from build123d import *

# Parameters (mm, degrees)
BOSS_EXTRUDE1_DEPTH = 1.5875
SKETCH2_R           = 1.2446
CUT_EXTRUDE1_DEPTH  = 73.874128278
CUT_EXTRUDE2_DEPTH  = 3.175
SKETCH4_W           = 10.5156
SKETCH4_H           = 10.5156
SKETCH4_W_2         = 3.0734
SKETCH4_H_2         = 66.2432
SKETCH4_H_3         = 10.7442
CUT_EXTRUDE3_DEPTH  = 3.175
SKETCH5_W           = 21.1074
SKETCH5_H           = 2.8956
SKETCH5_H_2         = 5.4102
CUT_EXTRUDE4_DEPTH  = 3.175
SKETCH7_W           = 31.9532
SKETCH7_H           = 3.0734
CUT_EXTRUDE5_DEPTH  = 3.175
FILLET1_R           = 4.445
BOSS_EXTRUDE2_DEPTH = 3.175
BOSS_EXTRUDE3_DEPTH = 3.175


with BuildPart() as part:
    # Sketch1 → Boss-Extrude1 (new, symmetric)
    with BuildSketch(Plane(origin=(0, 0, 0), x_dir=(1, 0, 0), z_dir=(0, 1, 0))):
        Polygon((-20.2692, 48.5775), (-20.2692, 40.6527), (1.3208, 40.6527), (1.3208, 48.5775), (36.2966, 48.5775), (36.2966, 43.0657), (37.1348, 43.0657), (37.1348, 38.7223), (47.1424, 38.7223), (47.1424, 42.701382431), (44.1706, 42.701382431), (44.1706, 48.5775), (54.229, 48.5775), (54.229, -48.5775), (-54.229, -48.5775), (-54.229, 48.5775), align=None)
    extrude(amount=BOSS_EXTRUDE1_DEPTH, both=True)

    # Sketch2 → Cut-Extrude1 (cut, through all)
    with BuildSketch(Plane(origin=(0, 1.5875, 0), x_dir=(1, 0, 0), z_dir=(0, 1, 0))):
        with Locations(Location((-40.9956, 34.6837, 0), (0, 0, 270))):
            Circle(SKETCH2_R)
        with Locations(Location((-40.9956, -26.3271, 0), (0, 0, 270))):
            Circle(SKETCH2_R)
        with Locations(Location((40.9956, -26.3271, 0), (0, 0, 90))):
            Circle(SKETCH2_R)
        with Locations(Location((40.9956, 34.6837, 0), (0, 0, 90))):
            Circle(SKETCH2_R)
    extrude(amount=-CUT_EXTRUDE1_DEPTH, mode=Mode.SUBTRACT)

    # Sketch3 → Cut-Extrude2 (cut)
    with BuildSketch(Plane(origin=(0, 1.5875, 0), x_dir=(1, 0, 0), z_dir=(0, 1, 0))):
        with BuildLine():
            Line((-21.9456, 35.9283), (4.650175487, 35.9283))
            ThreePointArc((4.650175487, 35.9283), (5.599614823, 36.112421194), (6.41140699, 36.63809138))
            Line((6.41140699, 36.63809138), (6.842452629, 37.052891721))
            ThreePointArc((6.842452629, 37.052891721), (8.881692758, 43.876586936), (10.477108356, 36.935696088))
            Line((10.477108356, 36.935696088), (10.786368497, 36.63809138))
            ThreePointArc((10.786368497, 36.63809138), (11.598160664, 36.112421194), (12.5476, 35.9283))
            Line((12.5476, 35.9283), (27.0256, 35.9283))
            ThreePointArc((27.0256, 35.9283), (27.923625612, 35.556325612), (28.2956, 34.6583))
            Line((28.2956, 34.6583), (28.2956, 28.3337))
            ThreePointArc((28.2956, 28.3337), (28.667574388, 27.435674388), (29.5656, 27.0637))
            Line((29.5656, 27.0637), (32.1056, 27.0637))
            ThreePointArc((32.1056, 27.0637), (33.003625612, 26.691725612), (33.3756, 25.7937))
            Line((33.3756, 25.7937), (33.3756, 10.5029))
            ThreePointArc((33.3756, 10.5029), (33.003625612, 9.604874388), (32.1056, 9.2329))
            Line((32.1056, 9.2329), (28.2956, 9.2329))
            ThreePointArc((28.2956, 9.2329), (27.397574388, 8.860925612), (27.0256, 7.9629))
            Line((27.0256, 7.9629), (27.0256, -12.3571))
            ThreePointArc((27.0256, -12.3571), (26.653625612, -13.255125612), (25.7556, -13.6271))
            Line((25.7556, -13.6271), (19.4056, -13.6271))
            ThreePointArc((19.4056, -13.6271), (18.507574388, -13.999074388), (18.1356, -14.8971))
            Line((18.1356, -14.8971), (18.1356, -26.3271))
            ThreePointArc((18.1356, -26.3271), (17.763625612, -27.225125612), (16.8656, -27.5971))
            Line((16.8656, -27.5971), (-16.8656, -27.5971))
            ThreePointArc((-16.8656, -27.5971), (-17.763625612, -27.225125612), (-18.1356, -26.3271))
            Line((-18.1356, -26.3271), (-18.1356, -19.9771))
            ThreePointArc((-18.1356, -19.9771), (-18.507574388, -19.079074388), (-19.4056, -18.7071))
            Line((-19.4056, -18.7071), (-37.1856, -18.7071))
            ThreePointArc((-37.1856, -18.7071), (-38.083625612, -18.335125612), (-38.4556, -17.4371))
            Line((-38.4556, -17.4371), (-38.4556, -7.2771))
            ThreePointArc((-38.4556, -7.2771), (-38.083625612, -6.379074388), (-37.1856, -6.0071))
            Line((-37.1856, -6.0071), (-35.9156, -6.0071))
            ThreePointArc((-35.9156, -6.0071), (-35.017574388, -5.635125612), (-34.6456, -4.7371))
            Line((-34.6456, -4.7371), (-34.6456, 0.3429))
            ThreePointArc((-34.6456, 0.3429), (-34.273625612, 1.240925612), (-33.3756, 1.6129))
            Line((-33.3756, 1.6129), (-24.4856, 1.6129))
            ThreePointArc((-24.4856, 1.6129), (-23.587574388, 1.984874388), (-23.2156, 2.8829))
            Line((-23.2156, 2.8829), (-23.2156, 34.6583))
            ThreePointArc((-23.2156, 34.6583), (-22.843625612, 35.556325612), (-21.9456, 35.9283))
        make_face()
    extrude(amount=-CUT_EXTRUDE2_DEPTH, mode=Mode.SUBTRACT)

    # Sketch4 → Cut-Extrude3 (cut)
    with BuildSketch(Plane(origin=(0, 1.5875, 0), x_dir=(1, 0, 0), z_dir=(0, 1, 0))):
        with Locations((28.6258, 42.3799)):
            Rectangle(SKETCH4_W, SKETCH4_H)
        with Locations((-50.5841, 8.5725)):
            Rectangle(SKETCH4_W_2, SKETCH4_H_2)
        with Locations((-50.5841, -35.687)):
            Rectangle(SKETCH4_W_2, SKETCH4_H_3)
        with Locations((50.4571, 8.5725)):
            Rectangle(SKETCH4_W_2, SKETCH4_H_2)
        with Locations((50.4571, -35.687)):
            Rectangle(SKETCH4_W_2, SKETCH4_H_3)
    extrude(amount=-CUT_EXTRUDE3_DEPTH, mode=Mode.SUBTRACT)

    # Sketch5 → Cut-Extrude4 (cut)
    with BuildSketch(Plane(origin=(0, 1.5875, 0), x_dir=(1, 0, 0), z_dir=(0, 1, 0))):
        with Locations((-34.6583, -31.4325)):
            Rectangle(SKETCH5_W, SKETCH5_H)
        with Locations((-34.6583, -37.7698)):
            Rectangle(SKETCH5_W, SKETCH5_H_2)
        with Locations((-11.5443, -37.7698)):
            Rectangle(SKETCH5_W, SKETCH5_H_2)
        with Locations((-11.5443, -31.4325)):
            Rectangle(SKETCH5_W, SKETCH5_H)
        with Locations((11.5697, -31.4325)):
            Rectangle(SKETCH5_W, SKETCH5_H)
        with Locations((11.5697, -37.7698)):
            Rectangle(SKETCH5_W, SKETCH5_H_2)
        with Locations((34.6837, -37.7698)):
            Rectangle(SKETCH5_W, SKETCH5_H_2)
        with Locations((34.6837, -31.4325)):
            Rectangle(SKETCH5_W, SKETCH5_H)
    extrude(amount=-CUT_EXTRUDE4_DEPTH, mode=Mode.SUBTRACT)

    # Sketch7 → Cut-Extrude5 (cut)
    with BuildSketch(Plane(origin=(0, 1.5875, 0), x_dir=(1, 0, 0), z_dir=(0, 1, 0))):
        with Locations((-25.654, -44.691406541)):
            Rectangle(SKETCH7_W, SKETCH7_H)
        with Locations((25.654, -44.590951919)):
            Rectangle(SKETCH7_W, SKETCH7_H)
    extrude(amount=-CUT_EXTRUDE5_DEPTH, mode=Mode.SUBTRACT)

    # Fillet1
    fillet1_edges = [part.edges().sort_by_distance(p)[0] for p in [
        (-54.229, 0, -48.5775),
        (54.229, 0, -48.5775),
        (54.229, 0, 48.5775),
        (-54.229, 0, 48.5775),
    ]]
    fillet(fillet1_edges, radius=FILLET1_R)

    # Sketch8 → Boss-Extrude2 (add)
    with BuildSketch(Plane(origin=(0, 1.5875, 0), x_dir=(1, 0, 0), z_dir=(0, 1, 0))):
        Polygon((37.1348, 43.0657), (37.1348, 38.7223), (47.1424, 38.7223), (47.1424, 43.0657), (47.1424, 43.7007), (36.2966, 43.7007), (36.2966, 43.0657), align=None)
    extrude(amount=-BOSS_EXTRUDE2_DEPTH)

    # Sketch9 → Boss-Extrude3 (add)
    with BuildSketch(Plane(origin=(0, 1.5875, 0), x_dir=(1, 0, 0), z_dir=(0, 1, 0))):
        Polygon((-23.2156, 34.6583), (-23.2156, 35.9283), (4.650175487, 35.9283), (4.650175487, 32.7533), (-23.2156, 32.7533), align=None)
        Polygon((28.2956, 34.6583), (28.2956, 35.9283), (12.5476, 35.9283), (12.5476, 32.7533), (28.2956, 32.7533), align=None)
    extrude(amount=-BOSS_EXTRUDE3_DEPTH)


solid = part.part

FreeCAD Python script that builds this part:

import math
import FreeCAD as App
import Part
import Sketcher

V = App.Vector
Q = App.Units.Quantity


def edges_at(feature, points):
    """Names of the edges that pass closest to the given points."""
    edges = feature.Shape.Edges
    near = lambda p: min(range(len(edges)), key=lambda i: edges[i].distToShape(Part.Vertex(*p))[0])
    return sorted({f"Edge{near(p) + 1}" for p in points})

doc = App.newDocument("Part")
body = doc.addObject("PartDesign::Body", "Body")

sketch1 = body.newObject("Sketcher::SketchObject", "Sketch")
sketch1.AttachmentSupport = (doc.getObject("XZ_Plane"), [""])
sketch1.MapMode = "FlatFace"
sketch1.addGeometry([
    Part.LineSegment(V(-20.3, -40.7, 0), V(-20.3, -48.6, 0)),
    Part.LineSegment(V(-20.3, -48.6, 0), V(-54.2, -48.6, 0)),
    Part.LineSegment(V(-54.2, -48.6, 0), V(-54.2, 48.6, 0)),
    Part.LineSegment(V(-54.2, 48.6, 0), V(54.2, 48.6, 0)),
    Part.LineSegment(V(54.2, 48.6, 0), V(54.2, -48.6, 0)),
    Part.LineSegment(V(54.2, -48.6, 0), V(44.2, -48.6, 0)),
    Part.LineSegment(V(44.2, -48.6, 0), V(44.2, -42.7, 0)),
    Part.LineSegment(V(44.2, -42.7, 0), V(47.1, -42.7, 0)),
    Part.LineSegment(V(47.1, -42.7, 0), V(47.1, -38.7, 0)),
    Part.LineSegment(V(47.1, -38.7, 0), V(37.1, -38.7, 0)),
    Part.LineSegment(V(37.1, -38.7, 0), V(37.1, -43.1, 0)),
    Part.LineSegment(V(37.1, -43.1, 0), V(36.3, -43.1, 0)),
    Part.LineSegment(V(36.3, -43.1, 0), V(36.3, -48.6, 0)),
    Part.LineSegment(V(36.3, -48.6, 0), V(1.3, -48.6, 0)),
    Part.LineSegment(V(1.3, -48.6, 0), V(1.3, -40.7, 0)),
    Part.LineSegment(V(1.3, -40.7, 0), V(-20.3, -40.7, 0)),
], False)
sketch1.addConstraint([
    Sketcher.Constraint("Coincident", 0, 2, 1, 1),
    Sketcher.Constraint("Coincident", 1, 2, 2, 1),
    Sketcher.Constraint("Coincident", 2, 2, 3, 1),
    Sketcher.Constraint("Coincident", 3, 2, 4, 1),
    Sketcher.Constraint("Coincident", 4, 2, 5, 1),
    Sketcher.Constraint("Coincident", 5, 2, 6, 1),
    Sketcher.Constraint("Coincident", 6, 2, 7, 1),
    Sketcher.Constraint("Coincident", 7, 2, 8, 1),
    Sketcher.Constraint("Coincident", 8, 2, 9, 1),
    Sketcher.Constraint("Coincident", 9, 2, 10, 1),
    Sketcher.Constraint("Coincident", 10, 2, 11, 1),
    Sketcher.Constraint("Coincident", 11, 2, 12, 1),
    Sketcher.Constraint("Coincident", 12, 2, 13, 1),
    Sketcher.Constraint("Coincident", 13, 2, 14, 1),
    Sketcher.Constraint("Coincident", 14, 2, 15, 1),
    Sketcher.Constraint("Coincident", 15, 2, 0, 1),
    Sketcher.Constraint("Vertical", 0),
    Sketcher.Constraint("Horizontal", 1),
    Sketcher.Constraint("Vertical", 2),
    Sketcher.Constraint("Horizontal", 3),
    Sketcher.Constraint("Vertical", 4),
    Sketcher.Constraint("Horizontal", 5),
    Sketcher.Constraint("Vertical", 6),
    Sketcher.Constraint("Horizontal", 7),
    Sketcher.Constraint("Vertical", 8),
    Sketcher.Constraint("Horizontal", 9),
    Sketcher.Constraint("Vertical", 10),
    Sketcher.Constraint("Horizontal", 11),
    Sketcher.Constraint("Vertical", 12),
    Sketcher.Constraint("Horizontal", 13),
    Sketcher.Constraint("Vertical", 14),
    Sketcher.Constraint("Horizontal", 15),
    Sketcher.Constraint("Symmetric", 1, 2, 3, 2, -1, 1),
    Sketcher.Constraint("Horizontal", 1, 2, 4, 2),
    Sketcher.Constraint("Horizontal", 5, 2, 12, 2),
    Sketcher.Constraint("DistanceX", 3, 1, 3, 2, Q("4.27 in")),
    Sketcher.Constraint("DistanceX", 15, 2, 15, 1, Q("0.85 in")),
    Sketcher.Constraint("DistanceX", 1, 2, 1, 1, Q("1.337 in")),
    Sketcher.Constraint("DistanceX", 5, 2, 5, 1, Q("0.396 in")),
    Sketcher.Constraint("DistanceX", 7, 1, 7, 2, Q("0.117 in")),
    Sketcher.Constraint("DistanceX", 9, 2, 9, 1, Q("0.394 in")),
    Sketcher.Constraint("DistanceX", 11, 2, 11, 1, Q("0.033 in")),
    Sketcher.Constraint("DistanceY", 0, 2, 0, 1, Q("0.312 in")),
    Sketcher.Constraint("DistanceY", 2, 1, 2, 2, Q("3.825 in")),
    Sketcher.Constraint("DistanceY", 10, 2, 10, 1, Q("0.171 in")),
    Sketcher.Constraint("DistanceY", 12, 2, 12, 1, Q("0.217 in")),
    Sketcher.Constraint("DistanceY", 6, 1, 6, 2, Q("5.876118 mm")),
])
pad1 = body.newObject("PartDesign::Pad", "Pad")
pad1.Profile = sketch1
pad1.Length = Q("0.125 in")
pad1.Midplane = True

sketch2 = body.newObject("Sketcher::SketchObject", "Sketch001")
sketch2.AttachmentSupport = (doc.getObject("XZ_Plane"), [""])
sketch2.MapMode = "FlatFace"
sketch2.AttachmentOffset = App.Placement(V(0, 0, -0.0625 * 25.4), App.Rotation())
sketch2.addGeometry([
    Part.Circle(V(-41, -34.7, 0), V(0, 0, 1), 1.2),
    Part.Circle(V(-41, 26.3, 0), V(0, 0, 1), 1.2),
    Part.Circle(V(41, 26.3, 0), V(0, 0, 1), 1.2),
    Part.Circle(V(41, -34.7, 0), V(0, 0, 1), 1.2),
], False)
sketch2.addConstraint([
    Sketcher.Constraint("Equal", 0, 1),
    Sketcher.Constraint("Equal", 1, 2),
    Sketcher.Constraint("Equal", 2, 3),
    Sketcher.Constraint("Symmetric", 1, 3, 2, 3, -2),
    Sketcher.Constraint("Symmetric", 0, 3, 3, 3, -2),
    Sketcher.Constraint("Vertical", 0, 3, 1, 3),
    Sketcher.Constraint("Diameter", 0, Q("0.098 in")),
    Sketcher.Constraint("DistanceX", 0, 3, -1, 1, Q("1.614 in")),
    Sketcher.Constraint("DistanceY", 0, 3, 1, 3, Q("2.402 in")),
    Sketcher.Constraint("DistanceY", 0, 3, -1, 1, Q("1.3655 in")),
])
pocket1 = body.newObject("PartDesign::Pocket", "Pocket")
pocket1.Profile = sketch2
pocket1.Type = "ThroughAll"
pocket1.Reversed = True

sketch3 = body.newObject("Sketcher::SketchObject", "Sketch002")
sketch3.AttachmentSupport = (doc.getObject("XZ_Plane"), [""])
sketch3.MapMode = "FlatFace"
sketch3.AttachmentOffset = App.Placement(V(0, 0, -0.0625 * 25.4), App.Rotation())
sketch3.addGeometry([
    Part.LineSegment(V(4.65, -35.93, 0), V(-21.95, -35.93, 0)),
    Part.ArcOfCircle(Part.Circle(V(-21.95, -34.66, 0), V(0, 0, 1), 1.27), math.radians(180), math.radians(270)),
    Part.LineSegment(V(-23.22, -34.66, 0), V(-23.22, -2.88, 0)),
    Part.ArcOfCircle(Part.Circle(V(-24.49, -2.88, 0), V(0, 0, 1), 1.27), math.radians(0), math.radians(90)),
    Part.LineSegment(V(-24.49, -1.61, 0), V(-33.38, -1.61, 0)),
    Part.ArcOfCircle(Part.Circle(V(-33.38, -0.34, 0), V(0, 0, 1), 1.27), math.radians(180), math.radians(270)),
    Part.LineSegment(V(-34.65, -0.34, 0), V(-34.65, 4.74, 0)),
    Part.ArcOfCircle(Part.Circle(V(-35.92, 4.74, 0), V(0, 0, 1), 1.27), math.radians(0), math.radians(90)),
    Part.LineSegment(V(-35.92, 6.01, 0), V(-37.19, 6.01, 0)),
    Part.ArcOfCircle(Part.Circle(V(-37.19, 7.28, 0), V(0, 0, 1), 1.27), math.radians(180), math.radians(270)),
    Part.LineSegment(V(-38.46, 7.28, 0), V(-38.46, 17.44, 0)),
    Part.ArcOfCircle(Part.Circle(V(-37.19, 17.44, 0), V(0, 0, 1), 1.27), math.radians(90), math.radians(180)),
    Part.LineSegment(V(-37.19, 18.71, 0), V(-19.41, 18.71, 0)),
    Part.ArcOfCircle(Part.Circle(V(-19.41, 19.98, 0), V(0, 0, 1), 1.27), math.radians(-90), math.radians(0)),
    Part.LineSegment(V(-18.14, 19.98, 0), V(-18.14, 26.33, 0)),
    Part.ArcOfCircle(Part.Circle(V(-16.87, 26.33, 0), V(0, 0, 1), 1.27), math.radians(90), math.radians(180)),
    Part.LineSegment(V(-16.87, 27.6, 0), V(16.87, 27.6, 0)),
    Part.ArcOfCircle(Part.Circle(V(16.87, 26.33, 0), V(0, 0, 1), 1.27), math.radians(0), math.radians(90)),
    Part.LineSegment(V(18.14, 26.33, 0), V(18.14, 14.9, 0)),
    Part.ArcOfCircle(Part.Circle(V(19.41, 14.9, 0), V(0, 0, 1), 1.27), math.radians(180), math.radians(270)),
    Part.LineSegment(V(19.41, 13.63, 0), V(25.76, 13.63, 0)),
    Part.ArcOfCircle(Part.Circle(V(25.76, 12.36, 0), V(0, 0, 1), 1.27), math.radians(0), math.radians(90)),
    Part.LineSegment(V(27.03, 12.36, 0), V(27.03, -7.96, 0)),
    Part.ArcOfCircle(Part.Circle(V(28.3, -7.96, 0), V(0, 0, 1), 1.27), math.radians(180), math.radians(270)),
    Part.LineSegment(V(28.3, -9.23, 0), V(32.11, -9.23, 0)),
    Part.ArcOfCircle(Part.Circle(V(32.11, -10.5, 0), V(0, 0, 1), 1.27), math.radians(0), math.radians(90)),
    Part.LineSegment(V(33.38, -10.5, 0), V(33.38, -25.79, 0)),
    Part.ArcOfCircle(Part.Circle(V(32.11, -25.79, 0), V(0, 0, 1), 1.27), math.radians(-90), math.radians(0)),
    Part.LineSegment(V(32.11, -27.06, 0), V(29.57, -27.06, 0)),
    Part.ArcOfCircle(Part.Circle(V(29.57, -28.33, 0), V(0, 0, 1), 1.27), math.radians(90), math.radians(180)),
    Part.LineSegment(V(28.3, -28.33, 0), V(28.3, -34.66, 0)),
    Part.ArcOfCircle(Part.Circle(V(27.03, -34.66, 0), V(0, 0, 1), 1.27), math.radians(-90), math.radians(0)),
    Part.LineSegment(V(27.03, -35.93, 0), V(12.55, -35.93, 0)),
    Part.ArcOfCircle(Part.Circle(V(12.55, -38.47, 0), V(0, 0, 1), 2.54), math.radians(90), math.radians(134)),
    Part.LineSegment(V(10.79, -36.64, 0), V(10.48, -36.94, 0)),
    Part.ArcOfCircle(Part.Circle(V(8.76, -40.2, 0), V(0, 0, 1), 3.68), math.radians(121), math.radians(422)),
    Part.LineSegment(V(6.84, -37.05, 0), V(6.41, -36.64, 0)),
    Part.ArcOfCircle(Part.Circle(V(4.65, -38.47, 0), V(0, 0, 1), 2.54), math.radians(46), math.radians(90)),
], False)
sketch3.addConstraint([
    Sketcher.Constraint("Tangent", 0, 2, 1, 2),
    Sketcher.Constraint("Tangent", 1, 1, 2, 1),
    Sketcher.Constraint("Tangent", 2, 2, 3, 1),
    Sketcher.Constraint("Tangent", 3, 2, 4, 1),
    Sketcher.Constraint("Tangent", 4, 2, 5, 2),
    Sketcher.Constraint("Tangent", 5, 1, 6, 1),
    Sketcher.Constraint("Tangent", 6, 2, 7, 1),
    Sketcher.Constraint("Tangent", 7, 2, 8, 1),
    Sketcher.Constraint("Tangent", 8, 2, 9, 2),
    Sketcher.Constraint("Tangent", 9, 1, 10, 1),
    Sketcher.Constraint("Tangent", 10, 2, 11, 2),
    Sketcher.Constraint("Tangent", 11, 1, 12, 1),
    Sketcher.Constraint("Tangent", 12, 2, 13, 1),
    Sketcher.Constraint("Tangent", 13, 2, 14, 1),
    Sketcher.Constraint("Tangent", 14, 2, 15, 2),
    Sketcher.Constraint("Tangent", 15, 1, 16, 1),
    Sketcher.Constraint("Tangent", 16, 2, 17, 2),
    Sketcher.Constraint("Tangent", 17, 1, 18, 1),
    Sketcher.Constraint("Tangent", 18, 2, 19, 1),
    Sketcher.Constraint("Tangent", 19, 2, 20, 1),
    Sketcher.Constraint("Tangent", 20, 2, 21, 2),
    Sketcher.Constraint("Tangent", 21, 1, 22, 1),
    Sketcher.Constraint("Tangent", 22, 2, 23, 1),
    Sketcher.Constraint("Tangent", 23, 2, 24, 1),
    Sketcher.Constraint("Tangent", 24, 2, 25, 2),
    Sketcher.Constraint("Tangent", 25, 1, 26, 1),
    Sketcher.Constraint("Tangent", 26, 2, 27, 2),
    Sketcher.Constraint("Tangent", 27, 1, 28, 1),
    Sketcher.Constraint("Tangent", 28, 2, 29, 1),
    Sketcher.Constraint("Tangent", 29, 2, 30, 1),
    Sketcher.Constraint("Tangent", 30, 2, 31, 2),
    Sketcher.Constraint("Tangent", 31, 1, 32, 1),
    Sketcher.Constraint("Tangent", 32, 2, 33, 1),
    Sketcher.Constraint("Tangent", 33, 2, 34, 1),
    Sketcher.Constraint("Coincident", 34, 2, 35, 2),
    Sketcher.Constraint("Coincident", 35, 1, 36, 1),
    Sketcher.Constraint("Tangent", 36, 2, 37, 1),
    Sketcher.Constraint("Tangent", 37, 2, 0, 1),
    Sketcher.Constraint("Horizontal", 0),
    Sketcher.Constraint("Vertical", 2),
    Sketcher.Constraint("Horizontal", 4),
    Sketcher.Constraint("Vertical", 6),
    Sketcher.Constraint("Horizontal", 8),
    Sketcher.Constraint("Vertical", 10),
    Sketcher.Constraint("Horizontal", 12),
    Sketcher.Constraint("Vertical", 14),
    Sketcher.Constraint("Horizontal", 16),
    Sketcher.Constraint("Vertical", 18),
    Sketcher.Constraint("Horizontal", 20),
    Sketcher.Constraint("Vertical", 22),
    Sketcher.Constraint("Horizontal", 24),
    Sketcher.Constraint("Vertical", 26),
    Sketcher.Constraint("Horizontal", 28),
    Sketcher.Constraint("Vertical", 30),
    Sketcher.Constraint("Horizontal", 32),
    Sketcher.Constraint("Equal", 1, 3),
    Sketcher.Constraint("Equal", 3, 5),
    Sketcher.Constraint("Equal", 5, 7),
    Sketcher.Constraint("Equal", 7, 9),
    Sketcher.Constraint("Equal", 9, 11),
    Sketcher.Constraint("Equal", 11, 13),
    Sketcher.Constraint("Equal", 13, 15),
    Sketcher.Constraint("Equal", 15, 17),
    Sketcher.Constraint("Equal", 17, 19),
    Sketcher.Constraint("Equal", 19, 21),
    Sketcher.Constraint("Equal", 21, 23),
    Sketcher.Constraint("Equal", 23, 25),
    Sketcher.Constraint("Equal", 25, 27),
    Sketcher.Constraint("Equal", 27, 29),
    Sketcher.Constraint("Equal", 29, 31),
    Sketcher.Constraint("Equal", 33, 37),
    Sketcher.Constraint("Horizontal", 1, 3, 31, 3),
    Sketcher.Constraint("Horizontal", 33, 2, 36, 2),
    Sketcher.Constraint("Vertical", 31, 3, 21, 1),
    Sketcher.Constraint("Equal", 20, 14),
    Sketcher.Constraint("Radius", 33, Q("0.1 in")),
    Sketcher.Constraint("Radius", 1, Q("0.05 in")),
    Sketcher.Constraint("DistanceX", 12, 1, 12, 2, Q("0.7 in")),
    Sketcher.Constraint("DistanceX", 28, 2, 28, 1, Q("0.1 in")),
    Sketcher.Constraint("DistanceY", 6, 1, 6, 2, Q("0.2 in")),
    Sketcher.Constraint("DistanceY", 10, 1, 10, 2, Q("0.4 in")),
    Sketcher.Constraint("DistanceY", 22, 2, 22, 1, Q("0.8 in")),
    Sketcher.Constraint("Radius", 35, Q("0.145 in")),
    Sketcher.Constraint("DistanceX", 4, 2, 4, 1, Q("0.35 in")),
    Sketcher.Constraint("DistanceX", 8, 2, 8, 1, Q("0.05 in")),
    Sketcher.Constraint("DistanceX", 20, 1, 20, 2, Q("0.25 in")),
    Sketcher.Constraint("DistanceX", 32, 2, 32, 1, Q("0.57 in")),
    Sketcher.Constraint("DistanceY", 18, 2, 18, 1, Q("0.45 in")),
    Sketcher.Constraint("DistanceX", 16, 1, 16, 2, Q("1.328 in")),
    Sketcher.Constraint("DistanceY", 2, 1, 2, 2, Q("1.251 in")),
    Sketcher.Constraint("DistanceY", 26, 2, 26, 1, Q("0.602 in")),
    Sketcher.Constraint("DistanceX", 1, 3, -1, 1, Q("0.864 in")),
    Sketcher.Constraint("DistanceX", -1, 1, 35, 3, Q("0.345 in")),
    Sketcher.Constraint("DistanceY", 35, 3, 33, 3, Q("0.068 in")),
    Sketcher.Constraint("DistanceY", 1, 3, -1, 1, Q("1.3645 in")),
    Sketcher.Constraint("DistanceY", 35, 1, 33, 2, Q("0.4148 mm")),
    Sketcher.Constraint("DistanceX", 36, 2, 34, 2, Q("4.065701 mm")),
])
pocket2 = body.newObject("PartDesign::Pocket", "Pocket001")
pocket2.Profile = sketch3
pocket2.Length = Q("0.125 in")
pocket2.Reversed = True

sketch4 = body.newObject("Sketcher::SketchObject", "Sketch003")
sketch4.AttachmentSupport = (doc.getObject("XZ_Plane"), [""])
sketch4.MapMode = "FlatFace"
sketch4.AttachmentOffset = App.Placement(V(0, 0, -0.0625 * 25.4), App.Rotation())
sketch4.addGeometry([
    Part.LineSegment(V(23.4, -47.6, 0), V(23.4, -37.1, 0)),
    Part.LineSegment(V(23.4, -37.1, 0), V(33.9, -37.1, 0)),
    Part.LineSegment(V(33.9, -37.1, 0), V(33.9, -47.6, 0)),
    Part.LineSegment(V(33.9, -47.6, 0), V(23.4, -47.6, 0)),
    Part.LineSegment(V(-52.1, -41.7, 0), V(-52.1, 24.5, 0)),
    Part.LineSegment(V(-52.1, 24.5, 0), V(-49, 24.5, 0)),
    Part.LineSegment(V(-49, 24.5, 0), V(-49, -41.7, 0)),
    Part.LineSegment(V(-49, -41.7, 0), V(-52.1, -41.7, 0)),
    Part.LineSegment(V(-52.1, 30.3, 0), V(-52.1, 41.1, 0)),
    Part.LineSegment(V(-52.1, 41.1, 0), V(-49, 41.1, 0)),
    Part.LineSegment(V(-49, 41.1, 0), V(-49, 30.3, 0)),
    Part.LineSegment(V(-49, 30.3, 0), V(-52.1, 30.3, 0)),
    Part.LineSegment(V(48.9, -41.7, 0), V(48.9, 24.5, 0)),
    Part.LineSegment(V(48.9, 24.5, 0), V(52, 24.5, 0)),
    Part.LineSegment(V(52, 24.5, 0), V(52, -41.7, 0)),
    Part.LineSegment(V(52, -41.7, 0), V(48.9, -41.7, 0)),
    Part.LineSegment(V(48.9, 30.3, 0), V(48.9, 41.1, 0)),
    Part.LineSegment(V(48.9, 41.1, 0), V(52, 41.1, 0)),
    Part.LineSegment(V(52, 41.1, 0), V(52, 30.3, 0)),
    Part.LineSegment(V(52, 30.3, 0), V(48.9, 30.3, 0)),
], False)
sketch4.addConstraint([
    Sketcher.Constraint("Coincident", 0, 2, 1, 1),
    Sketcher.Constraint("Coincident", 1, 2, 2, 1),
    Sketcher.Constraint("Coincident", 2, 2, 3, 1),
    Sketcher.Constraint("Coincident", 3, 2, 0, 1),
    Sketcher.Constraint("Coincident", 4, 2, 5, 1),
    Sketcher.Constraint("Coincident", 5, 2, 6, 1),
    Sketcher.Constraint("Coincident", 6, 2, 7, 1),
    Sketcher.Constraint("Coincident", 7, 2, 4, 1),
    Sketcher.Constraint("Coincident", 8, 2, 9, 1),
    Sketcher.Constraint("Coincident", 9, 2, 10, 1),
    Sketcher.Constraint("Coincident", 10, 2, 11, 1),
    Sketcher.Constraint("Coincident", 11, 2, 8, 1),
    Sketcher.Constraint("Coincident", 12, 2, 13, 1),
    Sketcher.Constraint("Coincident", 13, 2, 14, 1),
    Sketcher.Constraint("Coincident", 14, 2, 15, 1),
    Sketcher.Constraint("Coincident", 15, 2, 12, 1),
    Sketcher.Constraint("Coincident", 16, 2, 17, 1),
    Sketcher.Constraint("Coincident", 17, 2, 18, 1),
    Sketcher.Constraint("Coincident", 18, 2, 19, 1),
    Sketcher.Constraint("Coincident", 19, 2, 16, 1),
    Sketcher.Constraint("Vertical", 0),
    Sketcher.Constraint("Horizontal", 1),
    Sketcher.Constraint("Vertical", 2),
    Sketcher.Constraint("Horizontal", 3),
    Sketcher.Constraint("Vertical", 4),
    Sketcher.Constraint("Horizontal", 5),
    Sketcher.Constraint("Vertical", 6),
    Sketcher.Constraint("Horizontal", 7),
    Sketcher.Constraint("Vertical", 8),
    Sketcher.Constraint("Horizontal", 9),
    Sketcher.Constraint("Vertical", 10),
    Sketcher.Constraint("Horizontal", 11),
    Sketcher.Constraint("Vertical", 12),
    Sketcher.Constraint("Horizontal", 13),
    Sketcher.Constraint("Vertical", 14),
    Sketcher.Constraint("Horizontal", 15),
    Sketcher.Constraint("Vertical", 16),
    Sketcher.Constraint("Horizontal", 17),
    Sketcher.Constraint("Vertical", 18),
    Sketcher.Constraint("Horizontal", 19),
    Sketcher.Constraint("Horizontal", 5, 2, 12, 2),
    Sketcher.Constraint("Horizontal", 7, 2, 14, 2),
    Sketcher.Constraint("Horizontal", 9, 2, 16, 2),
    Sketcher.Constraint("Horizontal", 11, 2, 18, 2),
    Sketcher.Constraint("Vertical", 7, 2, 8, 2),
    Sketcher.Constraint("Vertical", 6, 2, 9, 2),
    Sketcher.Constraint("Vertical", 15, 2, 16, 2),
    Sketcher.Constraint("Vertical", 14, 2, 17, 2),
    Sketcher.Constraint("Equal", 11, 13),
    Sketcher.Constraint("Equal", 3, 0),
    Sketcher.Constraint("DistanceX", 1, 1, 1, 2, Q("0.414 in")),
    Sketcher.Constraint("DistanceX", 5, 1, 5, 2, Q("0.121 in")),
    Sketcher.Constraint("DistanceY", 4, 1, 4, 2, Q("2.608 in")),
    Sketcher.Constraint("DistanceY", 8, 1, 8, 2, Q("0.423 in")),
    Sketcher.Constraint("DistanceX", -1, 1, 0, 2, Q("0.92 in")),
    Sketcher.Constraint("DistanceY", 6, 2, 0, 2, Q("0.18 in")),
    Sketcher.Constraint("DistanceY", 4, 2, 8, 2, Q("0.65 in")),
    Sketcher.Constraint("DistanceX", 4, 2, -1, 1, Q("2.052 in")),
    Sketcher.Constraint("DistanceX", -1, 1, 12, 2, Q("1.926 in")),
    Sketcher.Constraint("DistanceY", 0, 2, -1, 1, Q("1.4615 in")),
])
pocket3 = body.newObject("PartDesign::Pocket", "Pocket002")
pocket3.Profile = sketch4
pocket3.Length = Q("0.125 in")
pocket3.Reversed = True

sketch5 = body.newObject("Sketcher::SketchObject", "Sketch004")
sketch5.AttachmentSupport = (doc.getObject("XZ_Plane"), [""])
sketch5.MapMode = "FlatFace"
sketch5.AttachmentOffset = App.Placement(V(0, 0, -0.0625 * 25.4), App.Rotation())
sketch5.addGeometry([
    Part.LineSegment(V(-45.2, 30, 0), V(-45.2, 32.9, 0)),
    Part.LineSegment(V(-45.2, 32.9, 0), V(-24.1, 32.9, 0)),
    Part.LineSegment(V(-24.1, 32.9, 0), V(-24.1, 30, 0)),
    Part.LineSegment(V(-24.1, 30, 0), V(-45.2, 30, 0)),
    Part.LineSegment(V(-45.2, 35.1, 0), V(-45.2, 40.5, 0)),
    Part.LineSegment(V(-45.2, 40.5, 0), V(-24.1, 40.5, 0)),
    Part.LineSegment(V(-24.1, 40.5, 0), V(-24.1, 35.1, 0)),
    Part.LineSegment(V(-24.1, 35.1, 0), V(-45.2, 35.1, 0)),
    Part.LineSegment(V(-22.1, 35.1, 0), V(-22.1, 40.5, 0)),
    Part.LineSegment(V(-22.1, 40.5, 0), V(-1, 40.5, 0)),
    Part.LineSegment(V(-1, 40.5, 0), V(-1, 35.1, 0)),
    Part.LineSegment(V(-1, 35.1, 0), V(-22.1, 35.1, 0)),
    Part.LineSegment(V(-22.1, 30, 0), V(-22.1, 32.9, 0)),
    Part.LineSegment(V(-22.1, 32.9, 0), V(-1, 32.9, 0)),
    Part.LineSegment(V(-1, 32.9, 0), V(-1, 30, 0)),
    Part.LineSegment(V(-1, 30, 0), V(-22.1, 30, 0)),
    Part.LineSegment(V(1, 30, 0), V(1, 32.9, 0)),
    Part.LineSegment(V(1, 32.9, 0), V(22.1, 32.9, 0)),
    Part.LineSegment(V(22.1, 32.9, 0), V(22.1, 30, 0)),
    Part.LineSegment(V(22.1, 30, 0), V(1, 30, 0)),
    Part.LineSegment(V(1, 35.1, 0), V(1, 40.5, 0)),
    Part.LineSegment(V(1, 40.5, 0), V(22.1, 40.5, 0)),
    Part.LineSegment(V(22.1, 40.5, 0), V(22.1, 35.1, 0)),
    Part.LineSegment(V(22.1, 35.1, 0), V(1, 35.1, 0)),
    Part.LineSegment(V(24.1, 35.1, 0), V(24.1, 40.5, 0)),
    Part.LineSegment(V(24.1, 40.5, 0), V(45.2, 40.5, 0)),
    Part.LineSegment(V(45.2, 40.5, 0), V(45.2, 35.1, 0)),
    Part.LineSegment(V(45.2, 35.1, 0), V(24.1, 35.1, 0)),
    Part.LineSegment(V(24.1, 30, 0), V(24.1, 32.9, 0)),
    Part.LineSegment(V(24.1, 32.9, 0), V(45.2, 32.9, 0)),
    Part.LineSegment(V(45.2, 32.9, 0), V(45.2, 30, 0)),
    Part.LineSegment(V(45.2, 30, 0), V(24.1, 30, 0)),
], False)
sketch5.addConstraint([
    Sketcher.Constraint("Coincident", 0, 2, 1, 1),
    Sketcher.Constraint("Coincident", 1, 2, 2, 1),
    Sketcher.Constraint("Coincident", 2, 2, 3, 1),
    Sketcher.Constraint("Coincident", 3, 2, 0, 1),
    Sketcher.Constraint("Coincident", 4, 2, 5, 1),
    Sketcher.Constraint("Coincident", 5, 2, 6, 1),
    Sketcher.Constraint("Coincident", 6, 2, 7, 1),
    Sketcher.Constraint("Coincident", 7, 2, 4, 1),
    Sketcher.Constraint("Coincident", 8, 2, 9, 1),
    Sketcher.Constraint("Coincident", 9, 2, 10, 1),
    Sketcher.Constraint("Coincident", 10, 2, 11, 1),
    Sketcher.Constraint("Coincident", 11, 2, 8, 1),
    Sketcher.Constraint("Coincident", 12, 2, 13, 1),
    Sketcher.Constraint("Coincident", 13, 2, 14, 1),
    Sketcher.Constraint("Coincident", 14, 2, 15, 1),
    Sketcher.Constraint("Coincident", 15, 2, 12, 1),
    Sketcher.Constraint("Coincident", 16, 2, 17, 1),
    Sketcher.Constraint("Coincident", 17, 2, 18, 1),
    Sketcher.Constraint("Coincident", 18, 2, 19, 1),
    Sketcher.Constraint("Coincident", 19, 2, 16, 1),
    Sketcher.Constraint("Coincident", 20, 2, 21, 1),
    Sketcher.Constraint("Coincident", 21, 2, 22, 1),
    Sketcher.Constraint("Coincident", 22, 2, 23, 1),
    Sketcher.Constraint("Coincident", 23, 2, 20, 1),
    Sketcher.Constraint("Coincident", 24, 2, 25, 1),
    Sketcher.Constraint("Coincident", 25, 2, 26, 1),
    Sketcher.Constraint("Coincident", 26, 2, 27, 1),
    Sketcher.Constraint("Coincident", 27, 2, 24, 1),
    Sketcher.Constraint("Coincident", 28, 2, 29, 1),
    Sketcher.Constraint("Coincident", 29, 2, 30, 1),
    Sketcher.Constraint("Coincident", 30, 2, 31, 1),
    Sketcher.Constraint("Coincident", 31, 2, 28, 1),
    Sketcher.Constraint("Vertical", 0),
    Sketcher.Constraint("Horizontal", 1),
    Sketcher.Constraint("Vertical", 2),
    Sketcher.Constraint("Horizontal", 3),
    Sketcher.Constraint("Vertical", 4),
    Sketcher.Constraint("Horizontal", 5),
    Sketcher.Constraint("Vertical", 6),
    Sketcher.Constraint("Horizontal", 7),
    Sketcher.Constraint("Vertical", 8),
    Sketcher.Constraint("Horizontal", 9),
    Sketcher.Constraint("Vertical", 10),
    Sketcher.Constraint("Horizontal", 11),
    Sketcher.Constraint("Vertical", 12),
    Sketcher.Constraint("Horizontal", 13),
    Sketcher.Constraint("Vertical", 14),
    Sketcher.Constraint("Horizontal", 15),
    Sketcher.Constraint("Vertical", 16),
    Sketcher.Constraint("Horizontal", 17),
    Sketcher.Constraint("Vertical", 18),
    Sketcher.Constraint("Horizontal", 19),
    Sketcher.Constraint("Vertical", 20),
    Sketcher.Constraint("Horizontal", 21),
    Sketcher.Constraint("Vertical", 22),
    Sketcher.Constraint("Horizontal", 23),
    Sketcher.Constraint("Vertical", 24),
    Sketcher.Constraint("Horizontal", 25),
    Sketcher.Constraint("Vertical", 26),
    Sketcher.Constraint("Horizontal", 27),
    Sketcher.Constraint("Vertical", 28),
    Sketcher.Constraint("Horizontal", 29),
    Sketcher.Constraint("Vertical", 30),
    Sketcher.Constraint("Horizontal", 31),
    Sketcher.Constraint("Horizontal", 5, 2, 8, 2),
    Sketcher.Constraint("Horizontal", 7, 2, 10, 2),
    Sketcher.Constraint("Horizontal", 1, 2, 12, 2),
    Sketcher.Constraint("Horizontal", 3, 2, 14, 2),
    Sketcher.Constraint("Horizontal", 13, 2, 16, 2),
    Sketcher.Constraint("Horizontal", 15, 2, 18, 2),
    Sketcher.Constraint("Horizontal", 9, 2, 20, 2),
    Sketcher.Constraint("Horizontal", 11, 2, 22, 2),
    Sketcher.Constraint("Horizontal", 21, 2, 24, 2),
    Sketcher.Constraint("Horizontal", 23, 2, 26, 2),
    Sketcher.Constraint("Horizontal", 17, 2, 28, 2),
    Sketcher.Constraint("Horizontal", 19, 2, 30, 2),
    Sketcher.Constraint("Vertical", 3, 2, 4, 2),
    Sketcher.Constraint("Vertical", 2, 2, 5, 2),
    Sketcher.Constraint("Vertical", 11, 2, 12, 2),
    Sketcher.Constraint("Vertical", 10, 2, 13, 2),
    Sketcher.Constraint("Vertical", 19, 2, 20, 2),
    Sketcher.Constraint("Vertical", 18, 2, 21, 2),
    Sketcher.Constraint("Vertical", 27, 2, 28, 2),
    Sketcher.Constraint("Vertical", 26, 2, 29, 2),
    Sketcher.Constraint("Equal", 7, 9),
    Sketcher.Constraint("Equal", 15, 17),
    Sketcher.Constraint("Equal", 23, 25),
    Sketcher.Constraint("DistanceY", 2, 2, 6, 2, Q("0.2 in")),
    Sketcher.Constraint("DistanceX", 1, 1, 1, 2, Q("0.831 in")),
    Sketcher.Constraint("DistanceY", 0, 1, 0, 2, Q("0.114 in")),
    Sketcher.Constraint("DistanceY", 4, 1, 4, 2, Q("0.213 in")),
    Sketcher.Constraint("DistanceX", 0, 2, -1, 1, Q("1.78 in")),
    Sketcher.Constraint("DistanceX", 8, 2, -1, 1, Q("0.87 in")),
    Sketcher.Constraint("DistanceX", -1, 1, 16, 2, Q("0.04 in")),
    Sketcher.Constraint("DistanceX", -1, 1, 24, 2, Q("0.95 in")),
    Sketcher.Constraint("DistanceY", -1, 1, 0, 2, Q("1.2945 in")),
])
pocket4 = body.newObject("PartDesign::Pocket", "Pocket003")
pocket4.Profile = sketch5
pocket4.Length = Q("0.125 in")
pocket4.Reversed = True

sketch6 = body.newObject("Sketcher::SketchObject", "Sketch005")
sketch6.AttachmentSupport = (doc.getObject("XZ_Plane"), [""])
sketch6.MapMode = "FlatFace"
sketch6.AttachmentOffset = App.Placement(V(0, 0, -0.0625 * 25.4), App.Rotation())
sketch6.addGeometry([
    Part.LineSegment(V(-41.6, 43.2, 0), V(-41.6, 46.2, 0)),
    Part.LineSegment(V(-41.6, 46.2, 0), V(-9.7, 46.2, 0)),
    Part.LineSegment(V(-9.7, 46.2, 0), V(-9.7, 43.2, 0)),
    Part.LineSegment(V(-9.7, 43.2, 0), V(-41.6, 43.2, 0)),
    Part.LineSegment(V(9.7, 43.1, 0), V(9.7, 46.1, 0)),
    Part.LineSegment(V(9.7, 46.1, 0), V(41.6, 46.1, 0)),
    Part.LineSegment(V(41.6, 46.1, 0), V(41.6, 43.1, 0)),
    Part.LineSegment(V(41.6, 43.1, 0), V(9.7, 43.1, 0)),
], False)
sketch6.addConstraint([
    Sketcher.Constraint("Coincident", 0, 2, 1, 1),
    Sketcher.Constraint("Coincident", 1, 2, 2, 1),
    Sketcher.Constraint("Coincident", 2, 2, 3, 1),
    Sketcher.Constraint("Coincident", 3, 2, 0, 1),
    Sketcher.Constraint("Coincident", 4, 2, 5, 1),
    Sketcher.Constraint("Coincident", 5, 2, 6, 1),
    Sketcher.Constraint("Coincident", 6, 2, 7, 1),
    Sketcher.Constraint("Coincident", 7, 2, 4, 1),
    Sketcher.Constraint("Vertical", 0),
    Sketcher.Constraint("Horizontal", 1),
    Sketcher.Constraint("Vertical", 2),
    Sketcher.Constraint("Horizontal", 3),
    Sketcher.Constraint("Vertical", 4),
    Sketcher.Constraint("Horizontal", 5),
    Sketcher.Constraint("Vertical", 6),
    Sketcher.Constraint("Horizontal", 7),
    Sketcher.Constraint("Equal", 3, 5),
    Sketcher.Constraint("Equal", 2, 4),
    Sketcher.Constraint("DistanceX", 1, 1, 1, 2, Q("1.258 in")),
    Sketcher.Constraint("DistanceY", 0, 1, 0, 2, Q("0.121 in")),
    Sketcher.Constraint("DistanceX", 0, 2, 4, 2, Q("2.02 in")),
    Sketcher.Constraint("DistanceX", 0, 2, -1, 1, Q("1.639 in")),
    Sketcher.Constraint("DistanceY", -1, 1, 4, 2, Q("46.127652 mm")),
    Sketcher.Constraint("DistanceY", -1, 1, 0, 2, Q("46.228107 mm")),
])
pocket5 = body.newObject("PartDesign::Pocket", "Pocket004")
pocket5.Profile = sketch6
pocket5.Length = Q("0.125 in")
pocket5.Reversed = True
doc.recompute()

fillet = body.newObject("PartDesign::Fillet", "Fillet")
fillet.Base = (pocket5, edges_at(pocket5, [
    (-54.229, 0, -48.578),
    (54.229, 0, -48.578),
    (54.229, 0, 48.578),
    (-54.229, 0, 48.578),
]))
fillet.Radius = Q("0.175 in")

sketch7 = body.newObject("Sketcher::SketchObject", "Sketch006")
sketch7.AttachmentSupport = (doc.getObject("XZ_Plane"), [""])
sketch7.MapMode = "FlatFace"
sketch7.AttachmentOffset = App.Placement(V(0, 0, -0.0625 * 25.4), App.Rotation())
sketch7.addGeometry([
    Part.LineSegment(V(37.1, -43.1, 0), V(37.1, -38.7, 0)),
    Part.LineSegment(V(37.1, -38.7, 0), V(47.1, -38.7, 0)),
    Part.LineSegment(V(47.1, -38.7, 0), V(47.1, -43.7, 0)),
    Part.LineSegment(V(47.1, -43.7, 0), V(36.3, -43.7, 0)),
    Part.LineSegment(V(36.3, -43.7, 0), V(36.3, -43.1, 0)),
    Part.LineSegment(V(36.3, -43.1, 0), V(37.1, -43.1, 0)),
], False)
sketch7.addConstraint([
    Sketcher.Constraint("Coincident", 0, 2, 1, 1),
    Sketcher.Constraint("Coincident", 1, 2, 2, 1),
    Sketcher.Constraint("Coincident", 2, 2, 3, 1),
    Sketcher.Constraint("Coincident", 3, 2, 4, 1),
    Sketcher.Constraint("Coincident", 4, 2, 5, 1),
    Sketcher.Constraint("Coincident", 5, 2, 0, 1),
    Sketcher.Constraint("Vertical", 0),
    Sketcher.Constraint("Horizontal", 1),
    Sketcher.Constraint("Vertical", 2),
    Sketcher.Constraint("Horizontal", 3),
    Sketcher.Constraint("Vertical", 4),
    Sketcher.Constraint("Horizontal", 5),
    Sketcher.Constraint("DistanceX", 1, 1, 1, 2, Q("0.394 in")),
    Sketcher.Constraint("DistanceX", 3, 2, 3, 1, Q("0.427 in")),
    Sketcher.Constraint("DistanceY", 0, 1, 0, 2, Q("0.171 in")),
    Sketcher.Constraint("DistanceY", 2, 2, 2, 1, Q("0.196 in")),
    Sketcher.Constraint("DistanceX", -1, 1, 0, 2, Q("1.462 in")),
    Sketcher.Constraint("DistanceY", 0, 2, -1, 1, Q("1.5245 in")),
])
pad2 = body.newObject("PartDesign::Pad", "Pad001")
pad2.Profile = sketch7
pad2.Length = Q("0.125 in")

sketch8 = body.newObject("Sketcher::SketchObject", "Sketch007")
sketch8.AttachmentSupport = (doc.getObject("XZ_Plane"), [""])
sketch8.MapMode = "FlatFace"
sketch8.AttachmentOffset = App.Placement(V(0, 0, -0.0625 * 25.4), App.Rotation())
sketch8.addGeometry([
    Part.LineSegment(V(-23.2, -35.9, 0), V(-23.2, -32.8, 0)),
    Part.LineSegment(V(-23.2, -32.8, 0), V(4.7, -32.8, 0)),
    Part.LineSegment(V(4.7, -32.8, 0), V(4.7, -35.9, 0)),
    Part.LineSegment(V(4.7, -35.9, 0), V(-23.2, -35.9, 0)),
    Part.LineSegment(V(28.3, -35.9, 0), V(12.5, -35.9, 0)),
    Part.LineSegment(V(12.5, -35.9, 0), V(12.5, -32.8, 0)),
    Part.LineSegment(V(12.5, -32.8, 0), V(28.3, -32.8, 0)),
    Part.LineSegment(V(28.3, -32.8, 0), V(28.3, -35.9, 0)),
], False)
sketch8.addConstraint([
    Sketcher.Constraint("Coincident", 0, 2, 1, 1),
    Sketcher.Constraint("Coincident", 1, 2, 2, 1),
    Sketcher.Constraint("Coincident", 2, 2, 3, 1),
    Sketcher.Constraint("Coincident", 3, 2, 0, 1),
    Sketcher.Constraint("Coincident", 4, 2, 5, 1),
    Sketcher.Constraint("Coincident", 5, 2, 6, 1),
    Sketcher.Constraint("Coincident", 6, 2, 7, 1),
    Sketcher.Constraint("Coincident", 7, 2, 4, 1),
    Sketcher.Constraint("Vertical", 0),
    Sketcher.Constraint("Horizontal", 1),
    Sketcher.Constraint("Vertical", 2),
    Sketcher.Constraint("Horizontal", 3),
    Sketcher.Constraint("Horizontal", 4),
    Sketcher.Constraint("Vertical", 5),
    Sketcher.Constraint("Horizontal", 6),
    Sketcher.Constraint("Vertical", 7),
    Sketcher.Constraint("Horizontal", 3, 2, 4, 2),
    Sketcher.Constraint("Horizontal", 1, 2, 5, 2),
    Sketcher.Constraint("DistanceX", 4, 2, 4, 1, Q("0.62 in")),
    Sketcher.Constraint("DistanceY", 0, 1, 0, 2, Q("0.125 in")),
    Sketcher.Constraint("DistanceX", 0, 2, -1, 1, Q("0.914 in")),
    Sketcher.Constraint("DistanceX", -1, 1, 4, 2, Q("0.494 in")),
    Sketcher.Constraint("DistanceY", 0, 2, -1, 1, Q("1.2895 in")),
    Sketcher.Constraint("DistanceX", 1, 1, 1, 2, Q("27.865775 mm")),
])
pad3 = body.newObject("PartDesign::Pad", "Pad002")
pad3.Profile = sketch8
pad3.Length = Q("0.125 in")

doc.recompute()
